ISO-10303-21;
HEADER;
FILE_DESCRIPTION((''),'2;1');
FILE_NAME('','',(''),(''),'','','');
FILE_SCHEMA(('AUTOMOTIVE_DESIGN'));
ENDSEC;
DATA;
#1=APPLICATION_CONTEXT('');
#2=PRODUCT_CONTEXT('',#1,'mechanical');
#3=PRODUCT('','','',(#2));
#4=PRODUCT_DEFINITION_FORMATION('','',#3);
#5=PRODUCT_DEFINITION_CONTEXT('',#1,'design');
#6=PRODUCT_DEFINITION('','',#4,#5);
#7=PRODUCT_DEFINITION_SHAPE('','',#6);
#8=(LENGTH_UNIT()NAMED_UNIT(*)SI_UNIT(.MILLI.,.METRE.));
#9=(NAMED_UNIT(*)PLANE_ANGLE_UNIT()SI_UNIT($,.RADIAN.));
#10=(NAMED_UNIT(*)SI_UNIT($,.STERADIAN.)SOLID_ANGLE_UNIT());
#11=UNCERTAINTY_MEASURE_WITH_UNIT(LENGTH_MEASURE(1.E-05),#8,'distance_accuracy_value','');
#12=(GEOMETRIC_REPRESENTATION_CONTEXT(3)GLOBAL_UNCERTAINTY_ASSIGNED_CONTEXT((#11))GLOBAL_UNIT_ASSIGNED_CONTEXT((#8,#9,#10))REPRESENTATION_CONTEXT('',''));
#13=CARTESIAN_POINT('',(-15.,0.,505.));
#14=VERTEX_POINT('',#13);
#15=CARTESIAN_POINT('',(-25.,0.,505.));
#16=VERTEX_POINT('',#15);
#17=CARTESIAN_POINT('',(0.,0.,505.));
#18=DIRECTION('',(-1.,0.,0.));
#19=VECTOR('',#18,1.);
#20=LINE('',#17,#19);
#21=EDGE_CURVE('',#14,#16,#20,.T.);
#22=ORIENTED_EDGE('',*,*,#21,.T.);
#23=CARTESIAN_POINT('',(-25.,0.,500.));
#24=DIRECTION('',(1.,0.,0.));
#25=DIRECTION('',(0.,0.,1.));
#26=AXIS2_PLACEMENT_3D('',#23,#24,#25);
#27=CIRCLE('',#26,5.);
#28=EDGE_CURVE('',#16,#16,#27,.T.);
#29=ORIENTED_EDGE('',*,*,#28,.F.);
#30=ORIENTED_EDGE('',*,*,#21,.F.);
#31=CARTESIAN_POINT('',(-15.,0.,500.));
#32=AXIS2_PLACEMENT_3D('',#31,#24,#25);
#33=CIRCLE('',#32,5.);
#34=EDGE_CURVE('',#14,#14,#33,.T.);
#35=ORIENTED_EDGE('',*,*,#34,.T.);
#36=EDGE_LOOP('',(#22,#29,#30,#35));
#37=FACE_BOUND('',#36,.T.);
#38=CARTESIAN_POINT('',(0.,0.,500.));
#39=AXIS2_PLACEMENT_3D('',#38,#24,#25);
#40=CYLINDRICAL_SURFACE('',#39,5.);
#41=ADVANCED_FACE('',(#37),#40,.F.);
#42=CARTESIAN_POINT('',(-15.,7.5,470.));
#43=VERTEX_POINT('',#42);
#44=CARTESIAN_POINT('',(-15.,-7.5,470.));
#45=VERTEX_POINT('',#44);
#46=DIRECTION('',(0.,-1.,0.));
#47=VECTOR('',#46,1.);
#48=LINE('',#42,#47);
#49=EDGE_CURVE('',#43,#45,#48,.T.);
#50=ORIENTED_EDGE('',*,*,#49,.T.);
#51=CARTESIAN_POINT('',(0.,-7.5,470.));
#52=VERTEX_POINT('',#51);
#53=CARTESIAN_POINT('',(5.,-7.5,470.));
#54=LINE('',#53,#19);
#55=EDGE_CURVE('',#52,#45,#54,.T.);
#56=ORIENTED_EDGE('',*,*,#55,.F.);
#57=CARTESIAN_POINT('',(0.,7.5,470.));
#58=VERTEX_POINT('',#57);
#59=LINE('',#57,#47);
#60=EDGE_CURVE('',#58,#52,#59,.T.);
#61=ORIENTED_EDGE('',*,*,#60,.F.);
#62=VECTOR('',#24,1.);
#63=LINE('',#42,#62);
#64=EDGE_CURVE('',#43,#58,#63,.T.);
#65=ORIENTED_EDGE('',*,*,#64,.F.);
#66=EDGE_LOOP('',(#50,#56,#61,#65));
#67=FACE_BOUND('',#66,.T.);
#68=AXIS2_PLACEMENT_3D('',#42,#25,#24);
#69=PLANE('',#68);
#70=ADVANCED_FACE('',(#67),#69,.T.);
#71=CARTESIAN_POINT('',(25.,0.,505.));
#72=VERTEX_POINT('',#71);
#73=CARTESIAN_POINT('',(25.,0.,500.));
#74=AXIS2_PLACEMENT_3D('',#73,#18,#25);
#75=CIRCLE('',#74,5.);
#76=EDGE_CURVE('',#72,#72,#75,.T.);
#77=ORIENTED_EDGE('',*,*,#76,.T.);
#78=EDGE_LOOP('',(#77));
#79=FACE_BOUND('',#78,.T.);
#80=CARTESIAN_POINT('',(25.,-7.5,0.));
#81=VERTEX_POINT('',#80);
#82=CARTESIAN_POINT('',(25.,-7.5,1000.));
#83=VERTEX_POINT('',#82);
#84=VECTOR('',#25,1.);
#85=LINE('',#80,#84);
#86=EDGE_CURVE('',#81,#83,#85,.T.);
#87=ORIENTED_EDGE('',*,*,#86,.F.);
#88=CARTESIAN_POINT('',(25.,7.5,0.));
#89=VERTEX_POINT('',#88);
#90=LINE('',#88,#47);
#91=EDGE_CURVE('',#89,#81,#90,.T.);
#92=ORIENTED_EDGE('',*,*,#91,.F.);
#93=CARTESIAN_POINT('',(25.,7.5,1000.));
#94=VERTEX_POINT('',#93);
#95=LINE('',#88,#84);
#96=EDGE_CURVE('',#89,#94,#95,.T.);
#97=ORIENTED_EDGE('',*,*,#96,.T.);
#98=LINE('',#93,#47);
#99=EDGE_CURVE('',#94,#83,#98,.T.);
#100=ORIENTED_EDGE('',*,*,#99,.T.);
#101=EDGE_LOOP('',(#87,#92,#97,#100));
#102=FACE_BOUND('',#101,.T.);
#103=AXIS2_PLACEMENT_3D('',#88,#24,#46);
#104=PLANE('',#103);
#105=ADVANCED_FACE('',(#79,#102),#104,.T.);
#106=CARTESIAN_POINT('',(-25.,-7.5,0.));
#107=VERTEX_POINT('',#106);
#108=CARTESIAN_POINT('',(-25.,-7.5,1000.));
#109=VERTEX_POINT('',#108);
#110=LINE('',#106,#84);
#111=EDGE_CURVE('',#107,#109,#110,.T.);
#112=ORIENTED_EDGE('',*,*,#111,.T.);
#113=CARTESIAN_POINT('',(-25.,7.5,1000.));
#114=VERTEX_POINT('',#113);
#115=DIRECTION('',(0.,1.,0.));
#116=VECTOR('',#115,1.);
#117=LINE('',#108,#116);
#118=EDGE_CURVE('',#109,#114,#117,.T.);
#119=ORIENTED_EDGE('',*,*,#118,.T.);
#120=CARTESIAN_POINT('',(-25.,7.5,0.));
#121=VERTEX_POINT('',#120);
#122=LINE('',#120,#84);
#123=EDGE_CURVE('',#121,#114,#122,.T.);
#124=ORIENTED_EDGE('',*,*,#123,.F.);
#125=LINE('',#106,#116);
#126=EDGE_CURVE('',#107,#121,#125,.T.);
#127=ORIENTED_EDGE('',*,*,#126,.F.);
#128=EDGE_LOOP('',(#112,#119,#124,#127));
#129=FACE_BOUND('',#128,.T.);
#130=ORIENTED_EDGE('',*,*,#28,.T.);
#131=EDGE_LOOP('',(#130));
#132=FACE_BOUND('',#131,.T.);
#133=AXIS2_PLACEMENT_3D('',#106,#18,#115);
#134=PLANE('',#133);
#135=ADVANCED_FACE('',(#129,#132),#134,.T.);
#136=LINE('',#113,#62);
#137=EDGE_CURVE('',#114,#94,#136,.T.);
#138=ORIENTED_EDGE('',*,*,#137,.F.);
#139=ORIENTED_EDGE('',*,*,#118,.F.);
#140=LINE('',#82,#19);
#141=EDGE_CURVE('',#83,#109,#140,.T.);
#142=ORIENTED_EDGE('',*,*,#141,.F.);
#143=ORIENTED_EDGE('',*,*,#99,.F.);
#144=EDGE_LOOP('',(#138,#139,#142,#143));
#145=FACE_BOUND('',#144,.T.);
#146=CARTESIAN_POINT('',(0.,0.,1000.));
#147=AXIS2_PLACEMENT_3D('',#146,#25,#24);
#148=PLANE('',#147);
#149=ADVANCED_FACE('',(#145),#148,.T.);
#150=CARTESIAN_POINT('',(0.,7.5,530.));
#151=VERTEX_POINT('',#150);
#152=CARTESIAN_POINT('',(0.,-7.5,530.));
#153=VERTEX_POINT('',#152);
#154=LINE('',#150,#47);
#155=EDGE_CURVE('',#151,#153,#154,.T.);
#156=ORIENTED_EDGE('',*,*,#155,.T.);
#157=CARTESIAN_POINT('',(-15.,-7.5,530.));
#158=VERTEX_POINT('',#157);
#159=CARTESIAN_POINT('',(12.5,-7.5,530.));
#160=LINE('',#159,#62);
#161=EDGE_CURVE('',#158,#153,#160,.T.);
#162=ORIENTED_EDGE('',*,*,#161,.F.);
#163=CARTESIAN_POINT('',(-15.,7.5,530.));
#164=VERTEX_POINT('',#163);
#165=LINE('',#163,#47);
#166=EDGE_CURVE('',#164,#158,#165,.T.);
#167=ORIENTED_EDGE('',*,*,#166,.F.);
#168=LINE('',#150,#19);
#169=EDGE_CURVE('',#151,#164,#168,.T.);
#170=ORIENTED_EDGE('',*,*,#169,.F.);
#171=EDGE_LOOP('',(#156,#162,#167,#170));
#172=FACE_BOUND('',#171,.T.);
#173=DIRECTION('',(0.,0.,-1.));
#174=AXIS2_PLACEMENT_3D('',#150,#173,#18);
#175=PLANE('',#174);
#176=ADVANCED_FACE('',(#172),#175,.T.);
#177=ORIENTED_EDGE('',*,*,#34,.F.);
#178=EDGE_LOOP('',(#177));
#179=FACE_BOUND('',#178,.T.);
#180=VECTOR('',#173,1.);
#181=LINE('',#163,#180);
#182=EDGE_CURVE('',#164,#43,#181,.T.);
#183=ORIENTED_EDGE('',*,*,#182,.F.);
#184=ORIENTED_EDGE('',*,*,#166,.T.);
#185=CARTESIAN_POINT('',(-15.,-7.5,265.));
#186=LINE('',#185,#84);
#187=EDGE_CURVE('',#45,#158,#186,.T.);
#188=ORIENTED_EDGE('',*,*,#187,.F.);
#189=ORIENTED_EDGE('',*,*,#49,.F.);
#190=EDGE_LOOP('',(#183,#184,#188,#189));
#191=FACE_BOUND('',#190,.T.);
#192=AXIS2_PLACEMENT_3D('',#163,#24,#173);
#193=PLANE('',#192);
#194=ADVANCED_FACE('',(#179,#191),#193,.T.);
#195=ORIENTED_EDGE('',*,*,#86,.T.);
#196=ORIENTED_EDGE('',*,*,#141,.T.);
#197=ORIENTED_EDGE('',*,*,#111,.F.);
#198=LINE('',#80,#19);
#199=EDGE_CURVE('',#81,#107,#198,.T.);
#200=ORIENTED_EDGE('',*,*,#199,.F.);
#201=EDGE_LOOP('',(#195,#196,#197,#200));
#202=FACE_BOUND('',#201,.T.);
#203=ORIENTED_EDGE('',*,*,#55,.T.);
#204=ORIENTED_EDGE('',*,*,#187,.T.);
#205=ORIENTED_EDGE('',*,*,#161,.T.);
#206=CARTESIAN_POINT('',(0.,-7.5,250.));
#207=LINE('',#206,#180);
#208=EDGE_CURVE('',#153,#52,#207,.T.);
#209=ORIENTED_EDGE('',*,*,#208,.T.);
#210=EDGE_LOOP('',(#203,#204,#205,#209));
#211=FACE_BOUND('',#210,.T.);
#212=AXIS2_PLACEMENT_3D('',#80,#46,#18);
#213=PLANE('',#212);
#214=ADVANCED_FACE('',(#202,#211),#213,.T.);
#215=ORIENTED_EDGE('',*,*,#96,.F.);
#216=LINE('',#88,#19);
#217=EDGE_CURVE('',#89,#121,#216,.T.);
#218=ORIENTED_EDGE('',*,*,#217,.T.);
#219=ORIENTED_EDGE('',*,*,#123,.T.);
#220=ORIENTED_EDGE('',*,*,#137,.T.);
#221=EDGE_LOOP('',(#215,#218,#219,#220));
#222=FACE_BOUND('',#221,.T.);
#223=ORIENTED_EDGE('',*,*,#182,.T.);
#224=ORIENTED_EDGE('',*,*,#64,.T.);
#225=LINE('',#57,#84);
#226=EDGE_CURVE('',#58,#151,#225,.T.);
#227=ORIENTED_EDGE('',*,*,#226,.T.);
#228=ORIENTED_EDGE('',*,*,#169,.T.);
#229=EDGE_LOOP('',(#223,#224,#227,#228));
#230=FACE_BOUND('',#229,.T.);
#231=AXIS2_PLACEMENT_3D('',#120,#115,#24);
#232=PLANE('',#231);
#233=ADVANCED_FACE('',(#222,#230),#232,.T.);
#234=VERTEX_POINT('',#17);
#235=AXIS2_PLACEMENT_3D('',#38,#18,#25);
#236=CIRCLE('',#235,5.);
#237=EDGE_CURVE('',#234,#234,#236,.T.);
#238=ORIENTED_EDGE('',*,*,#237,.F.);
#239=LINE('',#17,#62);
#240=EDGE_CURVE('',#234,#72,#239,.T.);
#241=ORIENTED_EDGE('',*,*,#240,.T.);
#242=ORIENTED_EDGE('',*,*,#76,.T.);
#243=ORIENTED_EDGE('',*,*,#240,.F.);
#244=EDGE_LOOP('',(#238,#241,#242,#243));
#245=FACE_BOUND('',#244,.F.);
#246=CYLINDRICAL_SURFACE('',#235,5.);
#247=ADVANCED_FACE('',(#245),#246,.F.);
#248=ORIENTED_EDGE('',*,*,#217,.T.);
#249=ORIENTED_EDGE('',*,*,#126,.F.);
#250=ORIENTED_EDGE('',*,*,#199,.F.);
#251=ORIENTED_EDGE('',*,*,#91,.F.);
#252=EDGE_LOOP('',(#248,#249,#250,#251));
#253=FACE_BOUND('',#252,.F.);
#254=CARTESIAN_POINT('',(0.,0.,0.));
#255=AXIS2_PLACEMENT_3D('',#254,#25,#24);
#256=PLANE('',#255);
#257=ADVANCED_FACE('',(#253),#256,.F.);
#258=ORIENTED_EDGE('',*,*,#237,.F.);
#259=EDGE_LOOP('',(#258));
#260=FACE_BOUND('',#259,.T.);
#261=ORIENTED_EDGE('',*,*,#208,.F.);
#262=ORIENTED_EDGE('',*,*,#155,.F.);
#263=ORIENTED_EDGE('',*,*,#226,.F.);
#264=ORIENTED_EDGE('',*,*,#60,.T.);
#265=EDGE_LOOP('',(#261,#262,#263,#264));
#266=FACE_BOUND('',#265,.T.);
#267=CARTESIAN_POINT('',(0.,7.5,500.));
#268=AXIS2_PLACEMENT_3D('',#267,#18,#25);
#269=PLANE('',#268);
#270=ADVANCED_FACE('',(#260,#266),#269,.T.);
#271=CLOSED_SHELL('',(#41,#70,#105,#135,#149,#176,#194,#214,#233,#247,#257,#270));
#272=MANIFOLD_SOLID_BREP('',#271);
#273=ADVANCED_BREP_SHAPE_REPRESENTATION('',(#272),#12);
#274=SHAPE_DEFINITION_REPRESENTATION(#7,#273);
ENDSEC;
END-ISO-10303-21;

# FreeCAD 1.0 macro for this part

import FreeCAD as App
import Part
import Sketcher
Q = App.Units.Quantity


def add_polygon(sketch, points):
    """Adds a closed chain of lines whose ends are joined by coincident constraints."""
    first, n = sketch.GeometryCount, len(points)
    for a, b in zip(points, points[1:] + points[:1]):
        sketch.addGeometry(Part.LineSegment(App.Vector(*a, 0), App.Vector(*b, 0)), False)
    for i in range(n):
        sketch.addConstraint(Sketcher.Constraint("Coincident", first + i, 2, first + (i + 1) % n, 1))

doc = App.newDocument("Part")
body = doc.addObject("PartDesign::Body", "Body")

# Sketch on XY plane
sketch1 = doc.addObject("Sketcher::SketchObject", "Sketch")
body.addObject(sketch1)
sketch1.AttachmentSupport = (doc.XY_Plane, [""])
sketch1.MapMode = "FlatFace"
add_polygon(sketch1, [(25, 8), (-25, 8), (-25, -8), (25, -8)])  # lines 0-3
sketch1.addConstraint(Sketcher.Constraint("Horizontal", 0))
sketch1.addConstraint(Sketcher.Constraint("Vertical", 1))
sketch1.addConstraint(Sketcher.Constraint("Horizontal", 2))
sketch1.addConstraint(Sketcher.Constraint("Vertical", 3))
sketch1.addConstraint(Sketcher.Constraint("Symmetric", 0, 2, 2, 2, -1, 1))
sketch1.addConstraint(Sketcher.Constraint("DistanceX", 0, 2, 0, 1, Q("50 mm")))
sketch1.addConstraint(Sketcher.Constraint("DistanceY", 1, 2, 1, 1, Q("15 mm")))
pad1 = doc.addObject("PartDesign::Pad", "Pad")
body.addObject(pad1)
pad1.Profile = sketch1
pad1.Length = 1000

# Sketch on XZ plane
sketch2 = doc.addObject("Sketcher::SketchObject", "Sketch001")
body.addObject(sketch2)
sketch2.AttachmentSupport = (doc.XZ_Plane, [""])
sketch2.MapMode = "FlatFace"
sketch2.AttachmentOffset = App.Placement(App.Vector(0, 0, -7.5), App.Rotation())
add_polygon(sketch2, [(-15, 530), (0, 530), (0, 470), (-15, 470)])  # lines 0-3
sketch2.addConstraint(Sketcher.Constraint("Horizontal", 0))
sketch2.addConstraint(Sketcher.Constraint("Vertical", 1))
sketch2.addConstraint(Sketcher.Constraint("Horizontal", 2))
sketch2.addConstraint(Sketcher.Constraint("Vertical", 3))
sketch2.addConstraint(Sketcher.Constraint("PointOnObject", 0, 2, -2))
sketch2.addConstraint(Sketcher.Constraint("DistanceX", 0, 1, 0, 2, Q("15 mm")))
sketch2.addConstraint(Sketcher.Constraint("DistanceY", 1, 2, 1, 1, Q("60 mm")))
sketch2.addConstraint(Sketcher.Constraint("DistanceY", -1, 1, 0, 2, Q("530 mm")))
pocket1 = doc.addObject("PartDesign::Pocket", "Pocket")
body.addObject(pocket1)
pocket1.Profile = sketch2
pocket1.Type = "ThroughAll"
pocket1.Reversed = True

# Sketch on YZ plane
sketch3 = doc.addObject("Sketcher::SketchObject", "Sketch002")
body.addObject(sketch3)
sketch3.AttachmentSupport = (doc.YZ_Plane, [""])
sketch3.MapMode = "FlatFace"
sketch3.addGeometry(Part.Circle(App.Vector(0, 500, 0), App.Vector(0, 0, 1), 5), False)
sketch3.addConstraint(Sketcher.Constraint("PointOnObject", 0, 3, -2))
sketch3.addConstraint(Sketcher.Constraint("Diameter", 0, Q("10 mm")))
sketch3.addConstraint(Sketcher.Constraint("DistanceY", -1, 1, 0, 3, Q("500 mm")))
pocket2 = doc.addObject("PartDesign::Pocket", "Pocket001")
body.addObject(pocket2)
pocket2.Profile = sketch3
pocket2.Type = "ThroughAll"
pocket2.Midplane = True

doc.recompute()
